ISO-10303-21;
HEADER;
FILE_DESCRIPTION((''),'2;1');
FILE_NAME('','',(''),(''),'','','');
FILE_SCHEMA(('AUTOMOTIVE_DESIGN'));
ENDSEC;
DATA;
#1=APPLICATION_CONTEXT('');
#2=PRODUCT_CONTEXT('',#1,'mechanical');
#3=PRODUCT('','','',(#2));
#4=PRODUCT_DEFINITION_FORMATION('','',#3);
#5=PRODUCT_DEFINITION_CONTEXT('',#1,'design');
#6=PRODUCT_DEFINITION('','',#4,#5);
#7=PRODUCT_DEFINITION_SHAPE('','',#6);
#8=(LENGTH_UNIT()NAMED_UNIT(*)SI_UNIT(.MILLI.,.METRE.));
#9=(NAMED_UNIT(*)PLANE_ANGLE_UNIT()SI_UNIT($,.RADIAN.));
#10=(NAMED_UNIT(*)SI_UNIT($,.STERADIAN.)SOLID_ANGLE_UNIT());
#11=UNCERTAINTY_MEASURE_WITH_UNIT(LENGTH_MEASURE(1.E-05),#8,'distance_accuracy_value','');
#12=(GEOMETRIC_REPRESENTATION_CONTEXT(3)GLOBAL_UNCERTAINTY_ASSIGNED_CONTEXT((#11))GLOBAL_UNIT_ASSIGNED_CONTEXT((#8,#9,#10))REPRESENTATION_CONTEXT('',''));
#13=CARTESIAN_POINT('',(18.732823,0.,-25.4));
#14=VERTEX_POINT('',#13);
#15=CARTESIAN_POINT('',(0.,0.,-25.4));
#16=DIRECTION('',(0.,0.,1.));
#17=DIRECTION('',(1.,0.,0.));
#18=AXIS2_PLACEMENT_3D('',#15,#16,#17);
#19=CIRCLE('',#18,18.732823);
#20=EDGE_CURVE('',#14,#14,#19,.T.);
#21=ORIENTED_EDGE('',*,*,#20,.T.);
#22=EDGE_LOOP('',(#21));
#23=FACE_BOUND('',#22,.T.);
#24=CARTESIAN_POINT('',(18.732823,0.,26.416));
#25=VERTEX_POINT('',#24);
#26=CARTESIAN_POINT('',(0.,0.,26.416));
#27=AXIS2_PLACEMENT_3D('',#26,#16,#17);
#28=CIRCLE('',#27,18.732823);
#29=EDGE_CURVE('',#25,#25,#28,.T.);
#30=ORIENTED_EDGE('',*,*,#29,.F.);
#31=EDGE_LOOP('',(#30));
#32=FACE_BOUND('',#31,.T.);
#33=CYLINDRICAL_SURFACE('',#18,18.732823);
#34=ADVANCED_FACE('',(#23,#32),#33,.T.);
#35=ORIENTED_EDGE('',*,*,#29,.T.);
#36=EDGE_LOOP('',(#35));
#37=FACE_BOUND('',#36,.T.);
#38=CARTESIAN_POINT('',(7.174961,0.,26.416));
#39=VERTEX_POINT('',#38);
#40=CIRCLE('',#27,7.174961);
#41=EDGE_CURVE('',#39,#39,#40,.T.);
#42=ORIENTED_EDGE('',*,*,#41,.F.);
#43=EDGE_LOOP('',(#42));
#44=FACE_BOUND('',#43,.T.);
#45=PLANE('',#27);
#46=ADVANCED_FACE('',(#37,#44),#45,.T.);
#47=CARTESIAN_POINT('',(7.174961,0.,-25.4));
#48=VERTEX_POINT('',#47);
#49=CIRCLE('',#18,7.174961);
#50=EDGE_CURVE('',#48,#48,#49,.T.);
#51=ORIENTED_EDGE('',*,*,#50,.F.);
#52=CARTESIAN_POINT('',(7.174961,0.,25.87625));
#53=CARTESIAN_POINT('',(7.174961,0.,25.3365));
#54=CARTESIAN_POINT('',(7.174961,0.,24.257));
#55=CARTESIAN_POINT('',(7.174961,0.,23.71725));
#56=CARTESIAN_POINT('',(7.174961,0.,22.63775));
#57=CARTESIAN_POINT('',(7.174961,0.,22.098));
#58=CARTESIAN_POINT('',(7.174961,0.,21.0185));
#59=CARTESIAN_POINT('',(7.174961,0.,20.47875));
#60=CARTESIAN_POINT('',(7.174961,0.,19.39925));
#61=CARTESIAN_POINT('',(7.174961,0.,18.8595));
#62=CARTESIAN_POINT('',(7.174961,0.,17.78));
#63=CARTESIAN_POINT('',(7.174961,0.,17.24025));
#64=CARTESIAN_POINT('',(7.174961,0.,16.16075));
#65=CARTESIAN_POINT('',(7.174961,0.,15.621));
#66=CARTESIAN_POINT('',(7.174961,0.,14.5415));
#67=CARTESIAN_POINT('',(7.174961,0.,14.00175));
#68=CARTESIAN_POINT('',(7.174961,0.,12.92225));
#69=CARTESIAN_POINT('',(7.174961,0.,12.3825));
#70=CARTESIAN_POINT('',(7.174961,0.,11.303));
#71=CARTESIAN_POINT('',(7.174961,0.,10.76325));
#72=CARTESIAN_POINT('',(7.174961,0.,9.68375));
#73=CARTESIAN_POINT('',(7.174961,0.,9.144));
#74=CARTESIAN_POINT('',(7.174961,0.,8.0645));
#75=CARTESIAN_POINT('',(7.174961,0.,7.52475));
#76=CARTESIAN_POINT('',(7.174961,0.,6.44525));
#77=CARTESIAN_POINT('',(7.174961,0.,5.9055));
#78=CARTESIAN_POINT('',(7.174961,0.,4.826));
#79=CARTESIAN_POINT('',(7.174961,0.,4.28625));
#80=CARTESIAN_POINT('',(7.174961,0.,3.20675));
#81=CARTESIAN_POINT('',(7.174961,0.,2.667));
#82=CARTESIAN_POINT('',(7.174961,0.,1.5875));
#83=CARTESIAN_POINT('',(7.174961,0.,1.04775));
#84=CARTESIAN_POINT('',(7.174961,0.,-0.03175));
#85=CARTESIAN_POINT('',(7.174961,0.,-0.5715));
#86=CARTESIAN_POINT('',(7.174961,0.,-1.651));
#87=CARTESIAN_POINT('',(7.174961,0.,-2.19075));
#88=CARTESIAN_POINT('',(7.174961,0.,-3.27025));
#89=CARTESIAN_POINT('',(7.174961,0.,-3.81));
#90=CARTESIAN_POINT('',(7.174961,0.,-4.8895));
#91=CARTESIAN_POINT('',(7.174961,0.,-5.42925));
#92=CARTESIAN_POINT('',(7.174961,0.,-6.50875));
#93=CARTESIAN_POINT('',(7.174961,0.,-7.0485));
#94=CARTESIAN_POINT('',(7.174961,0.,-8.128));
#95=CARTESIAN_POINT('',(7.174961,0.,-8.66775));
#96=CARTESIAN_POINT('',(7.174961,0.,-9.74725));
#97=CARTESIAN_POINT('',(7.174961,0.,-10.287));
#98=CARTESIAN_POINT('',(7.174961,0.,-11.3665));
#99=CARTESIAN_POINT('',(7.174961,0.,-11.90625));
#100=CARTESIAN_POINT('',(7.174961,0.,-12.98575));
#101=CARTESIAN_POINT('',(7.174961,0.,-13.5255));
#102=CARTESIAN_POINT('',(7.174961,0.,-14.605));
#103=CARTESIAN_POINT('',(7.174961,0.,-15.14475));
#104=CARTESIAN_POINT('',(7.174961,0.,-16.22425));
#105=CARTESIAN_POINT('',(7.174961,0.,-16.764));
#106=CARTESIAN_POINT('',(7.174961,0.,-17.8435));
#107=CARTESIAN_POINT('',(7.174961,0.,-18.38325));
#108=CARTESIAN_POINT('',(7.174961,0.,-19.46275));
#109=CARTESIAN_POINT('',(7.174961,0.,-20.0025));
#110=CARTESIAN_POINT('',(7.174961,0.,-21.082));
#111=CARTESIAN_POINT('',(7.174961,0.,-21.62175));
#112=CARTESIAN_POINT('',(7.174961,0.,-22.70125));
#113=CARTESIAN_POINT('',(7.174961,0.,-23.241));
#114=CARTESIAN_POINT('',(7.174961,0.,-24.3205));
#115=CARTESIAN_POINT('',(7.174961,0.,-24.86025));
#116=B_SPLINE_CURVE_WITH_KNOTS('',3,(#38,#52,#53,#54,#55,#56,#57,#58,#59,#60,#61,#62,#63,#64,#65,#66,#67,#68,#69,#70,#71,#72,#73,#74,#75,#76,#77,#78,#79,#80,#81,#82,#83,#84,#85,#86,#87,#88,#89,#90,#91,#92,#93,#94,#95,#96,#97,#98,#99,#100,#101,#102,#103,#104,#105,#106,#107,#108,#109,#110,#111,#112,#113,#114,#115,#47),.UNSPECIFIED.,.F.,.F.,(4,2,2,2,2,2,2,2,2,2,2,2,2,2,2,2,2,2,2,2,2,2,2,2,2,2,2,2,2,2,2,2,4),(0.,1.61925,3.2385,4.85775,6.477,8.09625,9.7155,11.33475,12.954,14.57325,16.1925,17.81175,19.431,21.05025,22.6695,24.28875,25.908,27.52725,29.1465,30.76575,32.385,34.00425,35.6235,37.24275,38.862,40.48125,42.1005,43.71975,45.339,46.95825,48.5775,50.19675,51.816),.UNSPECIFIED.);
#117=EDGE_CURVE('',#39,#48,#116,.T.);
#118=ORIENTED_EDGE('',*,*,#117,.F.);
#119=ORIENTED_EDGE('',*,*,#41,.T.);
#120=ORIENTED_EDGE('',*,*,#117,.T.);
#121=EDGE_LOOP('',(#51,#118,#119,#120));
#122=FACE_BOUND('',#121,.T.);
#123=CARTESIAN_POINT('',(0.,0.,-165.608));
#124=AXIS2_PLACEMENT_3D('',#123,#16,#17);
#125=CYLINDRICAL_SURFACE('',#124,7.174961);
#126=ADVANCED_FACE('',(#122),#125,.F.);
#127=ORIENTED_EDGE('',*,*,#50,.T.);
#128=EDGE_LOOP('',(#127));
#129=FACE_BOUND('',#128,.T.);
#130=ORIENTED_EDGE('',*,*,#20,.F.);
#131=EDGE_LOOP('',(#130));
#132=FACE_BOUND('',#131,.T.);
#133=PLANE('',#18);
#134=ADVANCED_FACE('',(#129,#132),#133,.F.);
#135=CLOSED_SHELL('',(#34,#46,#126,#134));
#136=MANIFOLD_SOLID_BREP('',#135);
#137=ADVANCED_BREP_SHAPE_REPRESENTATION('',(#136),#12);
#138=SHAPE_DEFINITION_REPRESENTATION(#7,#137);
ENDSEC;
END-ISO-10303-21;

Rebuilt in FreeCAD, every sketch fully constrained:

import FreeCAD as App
import Part
import Sketcher
Q = App.Units.Quantity

doc = App.newDocument("Part")
body = doc.addObject("PartDesign::Body", "Body")

sketch1 = body.newObject("Sketcher::SketchObject", "Sketch")
sketch1.AttachmentSupport = (doc.getObject("XY_Plane"), [""])
sketch1.MapMode = "FlatFace"
sketch1.addGeometry(Part.Circle(App.Vector(0, 0, 0), App.Vector(0, 0, 1), 18.732823), False)
sketch1.addConstraint(Sketcher.Constraint("Coincident", 0, 3, -1, 1))
sketch1.addConstraint(Sketcher.Constraint("Diameter", 0, 37.465646))
pad1 = body.newObject("PartDesign::Pad", "Pad")
pad1.Profile = sketch1
pad1.Type = "TwoLengths"
pad1.Length = Q("1.04 in")
pad1.Length2 = Q("1 in")

sketch2 = body.newObject("Sketcher::SketchObject", "Sketch001")
sketch2.AttachmentSupport = (doc.getObject("XY_Plane"), [""])
sketch2.MapMode = "FlatFace"
sketch2.AttachmentOffset = App.Placement(App.Vector(0, 0, 1.04 * 25.4), App.Rotation())
sketch2.addGeometry(Part.Circle(App.Vector(0, 0, 0), App.Vector(0, 0, 1), 7.174961), False)
sketch2.addConstraint(Sketcher.Constraint("Coincident", 0, 3, -1, 1))
sketch2.addConstraint(Sketcher.Constraint("Diameter", 0, 14.349921))
pocket1 = body.newObject("PartDesign::Pocket", "Pocket")
pocket1.Profile = sketch2
pocket1.Length = Q("7.56 in")

doc.recompute()
